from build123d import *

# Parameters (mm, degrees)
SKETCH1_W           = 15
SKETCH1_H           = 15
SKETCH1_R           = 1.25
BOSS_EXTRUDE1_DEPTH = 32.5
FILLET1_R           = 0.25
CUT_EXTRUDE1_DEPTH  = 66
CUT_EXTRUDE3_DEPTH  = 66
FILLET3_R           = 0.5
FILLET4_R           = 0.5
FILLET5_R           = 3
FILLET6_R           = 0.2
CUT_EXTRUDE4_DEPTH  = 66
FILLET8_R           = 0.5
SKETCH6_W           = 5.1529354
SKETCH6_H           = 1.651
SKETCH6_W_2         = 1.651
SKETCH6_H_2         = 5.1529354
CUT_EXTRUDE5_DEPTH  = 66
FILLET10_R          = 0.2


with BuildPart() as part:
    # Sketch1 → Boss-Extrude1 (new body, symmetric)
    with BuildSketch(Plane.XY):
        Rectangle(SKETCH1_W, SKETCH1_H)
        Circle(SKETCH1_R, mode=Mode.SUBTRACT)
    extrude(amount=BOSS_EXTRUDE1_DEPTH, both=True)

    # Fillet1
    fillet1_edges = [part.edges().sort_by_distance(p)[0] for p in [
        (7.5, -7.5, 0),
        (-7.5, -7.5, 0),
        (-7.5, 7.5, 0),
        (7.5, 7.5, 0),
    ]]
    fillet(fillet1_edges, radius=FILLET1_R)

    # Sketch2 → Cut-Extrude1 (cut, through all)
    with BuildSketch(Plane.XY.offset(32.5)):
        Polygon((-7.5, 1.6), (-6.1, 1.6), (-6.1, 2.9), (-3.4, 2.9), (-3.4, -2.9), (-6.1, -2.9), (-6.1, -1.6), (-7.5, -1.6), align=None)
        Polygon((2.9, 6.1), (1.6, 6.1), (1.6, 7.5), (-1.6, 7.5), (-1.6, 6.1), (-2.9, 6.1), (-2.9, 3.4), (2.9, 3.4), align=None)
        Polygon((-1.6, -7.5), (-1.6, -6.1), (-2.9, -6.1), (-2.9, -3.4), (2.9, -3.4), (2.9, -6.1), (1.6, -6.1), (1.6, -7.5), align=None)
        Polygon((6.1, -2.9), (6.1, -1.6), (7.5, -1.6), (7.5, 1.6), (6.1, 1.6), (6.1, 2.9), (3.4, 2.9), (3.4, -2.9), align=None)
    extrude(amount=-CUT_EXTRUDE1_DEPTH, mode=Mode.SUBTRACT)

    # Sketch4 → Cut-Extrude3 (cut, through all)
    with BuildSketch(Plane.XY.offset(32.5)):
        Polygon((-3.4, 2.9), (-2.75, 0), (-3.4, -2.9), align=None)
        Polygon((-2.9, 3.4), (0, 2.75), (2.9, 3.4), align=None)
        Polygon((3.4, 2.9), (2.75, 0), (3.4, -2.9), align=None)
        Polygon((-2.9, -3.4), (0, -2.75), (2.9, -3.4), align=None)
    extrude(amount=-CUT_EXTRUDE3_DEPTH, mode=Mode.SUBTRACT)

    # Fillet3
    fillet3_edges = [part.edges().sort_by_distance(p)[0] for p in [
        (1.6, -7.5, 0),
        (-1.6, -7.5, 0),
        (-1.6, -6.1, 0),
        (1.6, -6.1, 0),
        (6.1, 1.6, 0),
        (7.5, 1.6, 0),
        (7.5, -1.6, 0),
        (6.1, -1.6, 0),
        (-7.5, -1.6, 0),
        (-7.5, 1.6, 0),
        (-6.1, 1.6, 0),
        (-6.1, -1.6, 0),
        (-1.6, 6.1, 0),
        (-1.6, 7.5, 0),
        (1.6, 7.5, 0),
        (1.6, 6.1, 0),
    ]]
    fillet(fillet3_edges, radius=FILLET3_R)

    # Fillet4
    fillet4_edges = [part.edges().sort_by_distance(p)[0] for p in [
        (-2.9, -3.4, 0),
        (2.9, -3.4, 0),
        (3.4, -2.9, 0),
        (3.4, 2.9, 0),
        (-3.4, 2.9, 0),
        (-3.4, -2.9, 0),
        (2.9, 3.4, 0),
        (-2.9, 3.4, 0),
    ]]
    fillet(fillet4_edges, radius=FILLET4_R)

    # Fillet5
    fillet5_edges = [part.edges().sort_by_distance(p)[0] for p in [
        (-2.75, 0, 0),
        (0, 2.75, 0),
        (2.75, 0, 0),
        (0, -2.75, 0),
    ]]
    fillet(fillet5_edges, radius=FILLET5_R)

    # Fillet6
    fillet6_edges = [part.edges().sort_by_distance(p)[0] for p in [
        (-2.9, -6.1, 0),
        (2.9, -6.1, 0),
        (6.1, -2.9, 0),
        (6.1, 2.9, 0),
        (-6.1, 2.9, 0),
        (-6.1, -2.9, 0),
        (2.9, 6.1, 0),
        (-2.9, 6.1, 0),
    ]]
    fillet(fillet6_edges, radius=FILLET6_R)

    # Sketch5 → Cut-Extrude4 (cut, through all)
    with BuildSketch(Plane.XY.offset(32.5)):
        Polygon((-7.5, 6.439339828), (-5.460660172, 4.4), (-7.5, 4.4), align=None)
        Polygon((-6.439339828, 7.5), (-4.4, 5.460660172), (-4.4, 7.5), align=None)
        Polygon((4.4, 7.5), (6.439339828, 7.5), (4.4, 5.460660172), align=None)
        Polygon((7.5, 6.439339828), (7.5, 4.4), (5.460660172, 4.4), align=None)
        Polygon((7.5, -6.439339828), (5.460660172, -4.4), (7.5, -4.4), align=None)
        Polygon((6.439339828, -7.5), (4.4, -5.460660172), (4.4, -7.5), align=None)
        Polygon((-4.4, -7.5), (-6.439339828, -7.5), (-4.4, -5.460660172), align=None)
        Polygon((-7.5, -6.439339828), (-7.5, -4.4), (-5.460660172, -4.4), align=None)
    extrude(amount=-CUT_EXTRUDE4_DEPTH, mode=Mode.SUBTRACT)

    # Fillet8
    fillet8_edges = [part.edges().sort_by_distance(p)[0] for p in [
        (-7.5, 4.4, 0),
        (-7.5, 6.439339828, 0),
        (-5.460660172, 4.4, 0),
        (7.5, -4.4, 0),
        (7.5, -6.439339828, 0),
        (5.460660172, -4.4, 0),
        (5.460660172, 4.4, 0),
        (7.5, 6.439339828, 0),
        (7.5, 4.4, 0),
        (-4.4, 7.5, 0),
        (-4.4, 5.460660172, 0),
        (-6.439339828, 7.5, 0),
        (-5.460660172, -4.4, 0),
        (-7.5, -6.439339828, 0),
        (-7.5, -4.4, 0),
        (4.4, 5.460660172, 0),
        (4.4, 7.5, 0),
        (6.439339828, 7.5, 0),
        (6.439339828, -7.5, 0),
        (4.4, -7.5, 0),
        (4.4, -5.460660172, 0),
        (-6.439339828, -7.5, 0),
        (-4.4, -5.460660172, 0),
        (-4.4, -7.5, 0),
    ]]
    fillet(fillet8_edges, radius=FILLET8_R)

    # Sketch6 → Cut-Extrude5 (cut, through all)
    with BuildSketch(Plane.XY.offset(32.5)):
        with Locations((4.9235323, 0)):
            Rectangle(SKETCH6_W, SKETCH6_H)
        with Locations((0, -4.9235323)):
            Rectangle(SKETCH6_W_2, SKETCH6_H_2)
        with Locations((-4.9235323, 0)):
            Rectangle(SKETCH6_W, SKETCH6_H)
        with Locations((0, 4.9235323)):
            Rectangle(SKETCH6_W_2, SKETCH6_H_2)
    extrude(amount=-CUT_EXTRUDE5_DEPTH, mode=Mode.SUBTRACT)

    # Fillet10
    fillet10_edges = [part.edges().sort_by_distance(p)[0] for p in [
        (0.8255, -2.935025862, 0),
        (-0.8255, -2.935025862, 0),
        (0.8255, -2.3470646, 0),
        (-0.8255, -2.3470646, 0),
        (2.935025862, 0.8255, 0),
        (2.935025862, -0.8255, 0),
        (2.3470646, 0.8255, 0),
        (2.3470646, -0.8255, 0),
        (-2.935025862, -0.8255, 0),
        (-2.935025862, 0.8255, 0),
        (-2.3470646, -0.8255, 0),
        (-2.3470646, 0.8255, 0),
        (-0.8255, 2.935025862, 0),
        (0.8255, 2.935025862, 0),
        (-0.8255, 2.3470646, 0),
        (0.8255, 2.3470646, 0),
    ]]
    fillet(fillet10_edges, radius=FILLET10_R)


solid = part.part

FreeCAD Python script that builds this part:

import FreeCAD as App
import Part
import Sketcher
from FreeCAD import Vector


def edges_at(feature, points):
    """Names of the edges that pass closest to the given points."""
    edges = feature.Shape.Edges
    near = lambda p: min(range(len(edges)), key=lambda i: edges[i].distToShape(Part.Vertex(*p))[0])
    return sorted({f"Edge{near(p) + 1}" for p in points})

doc = App.newDocument("Part")
body = doc.addObject("PartDesign::Body", "Body")

sketch1 = body.newObject("Sketcher::SketchObject", "Sketch")
sketch1.AttachmentSupport = (doc.getObject("XY_Plane"), [""])
sketch1.MapMode = "FlatFace"
sketch1.addGeometry([
    Part.LineSegment(Vector(-7.5, 7.5, 0), Vector(-7.5, -7.5, 0)),
    Part.LineSegment(Vector(-7.5, -7.5, 0), Vector(7.5, -7.5, 0)),
    Part.LineSegment(Vector(7.5, -7.5, 0), Vector(7.5, 7.5, 0)),
    Part.LineSegment(Vector(7.5, 7.5, 0), Vector(-7.5, 7.5, 0)),
    Part.Circle(Vector(0, 0, 0), Vector(0, 0, 1), 1.2),
], False)
sketch1.addConstraint([
    Sketcher.Constraint("Coincident", 0, 2, 1, 1),
    Sketcher.Constraint("Coincident", 1, 2, 2, 1),
    Sketcher.Constraint("Coincident", 2, 2, 3, 1),
    Sketcher.Constraint("Coincident", 3, 2, 0, 1),
    Sketcher.Constraint("Vertical", 0),
    Sketcher.Constraint("Horizontal", 1),
    Sketcher.Constraint("Vertical", 2),
    Sketcher.Constraint("Horizontal", 3),
    Sketcher.Constraint("Coincident", 4, 3, -1, 1),
    Sketcher.Constraint("Symmetric", 0, 2, 2, 2, -1, 1),
    Sketcher.Constraint("Equal", 3, 0),
    Sketcher.Constraint("Diameter", 4, 2.5),
    Sketcher.Constraint("DistanceX", 1, 1, 1, 2, 15.0),
])
pad1 = body.newObject("PartDesign::Pad", "Pad")
pad1.Profile = sketch1
pad1.Length = 65
pad1.Midplane = True
doc.recompute()

fillet = body.newObject("PartDesign::Fillet", "Fillet")
fillet.Base = (pad1, edges_at(pad1, [
    (7.5, -7.5, 0),
    (-7.5, -7.5, 0),
    (-7.5, 7.5, 0),
    (7.5, 7.5, 0),
]))
fillet.Radius = 0.25

sketch2 = body.newObject("Sketcher::SketchObject", "Sketch001")
sketch2.AttachmentSupport = (doc.getObject("XY_Plane"), [""])
sketch2.MapMode = "FlatFace"
sketch2.AttachmentOffset = App.Placement(Vector(0, 0, 32.5), App.Rotation())
sketch2.addGeometry([
    Part.LineSegment(Vector(-6.1, 1.6, 0), Vector(-7.5, 1.6, 0)),
    Part.LineSegment(Vector(-7.5, 1.6, 0), Vector(-7.5, -1.6, 0)),
    Part.LineSegment(Vector(-7.5, -1.6, 0), Vector(-6.1, -1.6, 0)),
    Part.LineSegment(Vector(-6.1, -1.6, 0), Vector(-6.1, -2.9, 0)),
    Part.LineSegment(Vector(-6.1, -2.9, 0), Vector(-3.4, -2.9, 0)),
    Part.LineSegment(Vector(-3.4, -2.9, 0), Vector(-3.4, 2.9, 0)),
    Part.LineSegment(Vector(-3.4, 2.9, 0), Vector(-6.1, 2.9, 0)),
    Part.LineSegment(Vector(-6.1, 2.9, 0), Vector(-6.1, 1.6, 0)),
    Part.LineSegment(Vector(2.9, 6.1, 0), Vector(1.6, 6.1, 0)),
    Part.LineSegment(Vector(1.6, 6.1, 0), Vector(1.6, 7.5, 0)),
    Part.LineSegment(Vector(1.6, 7.5, 0), Vector(-1.6, 7.5, 0)),
    Part.LineSegment(Vector(-1.6, 7.5, 0), Vector(-1.6, 6.1, 0)),
    Part.LineSegment(Vector(-1.6, 6.1, 0), Vector(-2.9, 6.1, 0)),
    Part.LineSegment(Vector(-2.9, 6.1, 0), Vector(-2.9, 3.4, 0)),
    Part.LineSegment(Vector(-2.9, 3.4, 0), Vector(2.9, 3.4, 0)),
    Part.LineSegment(Vector(2.9, 3.4, 0), Vector(2.9, 6.1, 0)),
    Part.LineSegment(Vector(-1.6, -6.1, 0), Vector(-1.6, -7.5, 0)),
    Part.LineSegment(Vector(-1.6, -7.5, 0), Vector(1.6, -7.5, 0)),
    Part.LineSegment(Vector(1.6, -7.5, 0), Vector(1.6, -6.1, 0)),
    Part.LineSegment(Vector(1.6, -6.1, 0), Vector(2.9, -6.1, 0)),
    Part.LineSegment(Vector(2.9, -6.1, 0), Vector(2.9, -3.4, 0)),
    Part.LineSegment(Vector(2.9, -3.4, 0), Vector(-2.9, -3.4, 0)),
    Part.LineSegment(Vector(-2.9, -3.4, 0), Vector(-2.9, -6.1, 0)),
    Part.LineSegment(Vector(-2.9, -6.1, 0), Vector(-1.6, -6.1, 0)),
    Part.LineSegment(Vector(6.1, -2.9, 0), Vector(6.1, -1.6, 0)),
    Part.LineSegment(Vector(6.1, -1.6, 0), Vector(7.5, -1.6, 0)),
    Part.LineSegment(Vector(7.5, -1.6, 0), Vector(7.5, 1.6, 0)),
    Part.LineSegment(Vector(7.5, 1.6, 0), Vector(6.1, 1.6, 0)),
    Part.LineSegment(Vector(6.1, 1.6, 0), Vector(6.1, 2.9, 0)),
    Part.LineSegment(Vector(6.1, 2.9, 0), Vector(3.4, 2.9, 0)),
    Part.LineSegment(Vector(3.4, 2.9, 0), Vector(3.4, -2.9, 0)),
    Part.LineSegment(Vector(3.4, -2.9, 0), Vector(6.1, -2.9, 0)),
], False)
sketch2.addConstraint([
    Sketcher.Constraint("Coincident", 0, 2, 1, 1),
    Sketcher.Constraint("Coincident", 1, 2, 2, 1),
    Sketcher.Constraint("Coincident", 2, 2, 3, 1),
    Sketcher.Constraint("Coincident", 3, 2, 4, 1),
    Sketcher.Constraint("Coincident", 4, 2, 5, 1),
    Sketcher.Constraint("Coincident", 5, 2, 6, 1),
    Sketcher.Constraint("Coincident", 6, 2, 7, 1),
    Sketcher.Constraint("Coincident", 7, 2, 0, 1),
    Sketcher.Constraint("Coincident", 8, 2, 9, 1),
    Sketcher.Constraint("Coincident", 9, 2, 10, 1),
    Sketcher.Constraint("Coincident", 10, 2, 11, 1),
    Sketcher.Constraint("Coincident", 11, 2, 12, 1),
    Sketcher.Constraint("Coincident", 12, 2, 13, 1),
    Sketcher.Constraint("Coincident", 13, 2, 14, 1),
    Sketcher.Constraint("Coincident", 14, 2, 15, 1),
    Sketcher.Constraint("Coincident", 15, 2, 8, 1),
    Sketcher.Constraint("Coincident", 16, 2, 17, 1),
    Sketcher.Constraint("Coincident", 17, 2, 18, 1),
    Sketcher.Constraint("Coincident", 18, 2, 19, 1),
    Sketcher.Constraint("Coincident", 19, 2, 20, 1),
    Sketcher.Constraint("Coincident", 20, 2, 21, 1),
    Sketcher.Constraint("Coincident", 21, 2, 22, 1),
    Sketcher.Constraint("Coincident", 22, 2, 23, 1),
    Sketcher.Constraint("Coincident", 23, 2, 16, 1),
    Sketcher.Constraint("Coincident", 24, 2, 25, 1),
    Sketcher.Constraint("Coincident", 25, 2, 26, 1),
    Sketcher.Constraint("Coincident", 26, 2, 27, 1),
    Sketcher.Constraint("Coincident", 27, 2, 28, 1),
    Sketcher.Constraint("Coincident", 28, 2, 29, 1),
    Sketcher.Constraint("Coincident", 29, 2, 30, 1),
    Sketcher.Constraint("Coincident", 30, 2, 31, 1),
    Sketcher.Constraint("Coincident", 31, 2, 24, 1),
    Sketcher.Constraint("Horizontal", 0),
    Sketcher.Constraint("Vertical", 1),
    Sketcher.Constraint("Horizontal", 2),
    Sketcher.Constraint("Vertical", 3),
    Sketcher.Constraint("Horizontal", 4),
    Sketcher.Constraint("Vertical", 5),
    Sketcher.Constraint("Horizontal", 6),
    Sketcher.Constraint("Vertical", 7),
    Sketcher.Constraint("Horizontal", 8),
    Sketcher.Constraint("Vertical", 9),
    Sketcher.Constraint("Horizontal", 10),
    Sketcher.Constraint("Vertical", 11),
    Sketcher.Constraint("Horizontal", 12),
    Sketcher.Constraint("Vertical", 13),
    Sketcher.Constraint("Horizontal", 14),
    Sketcher.Constraint("Vertical", 15),
    Sketcher.Constraint("Vertical", 16),
    Sketcher.Constraint("Horizontal", 17),
    Sketcher.Constraint("Vertical", 18),
    Sketcher.Constraint("Horizontal", 19),
    Sketcher.Constraint("Vertical", 20),
    Sketcher.Constraint("Horizontal", 21),
    Sketcher.Constraint("Vertical", 22),
    Sketcher.Constraint("Horizontal", 23),
    Sketcher.Constraint("Vertical", 24),
    Sketcher.Constraint("Horizontal", 25),
    Sketcher.Constraint("Vertical", 26),
    Sketcher.Constraint("Horizontal", 27),
    Sketcher.Constraint("Vertical", 28),
    Sketcher.Constraint("Horizontal", 29),
    Sketcher.Constraint("Vertical", 30),
    Sketcher.Constraint("Horizontal", 31),
    Sketcher.Constraint("Symmetric", 9, 2, 16, 2, -1, 1),
    Sketcher.Constraint("Symmetric", 11, 2, 18, 2, -1, 1),
    Sketcher.Constraint("Symmetric", 13, 2, 20, 2, -1, 1),
    Sketcher.Constraint("Symmetric", 15, 2, 22, 2, -1, 1),
    Sketcher.Constraint("Symmetric", 7, 2, 24, 2, -1, 1),
    Sketcher.Constraint("Symmetric", 1, 2, 26, 2, -1, 1),
    Sketcher.Constraint("Symmetric", 3, 2, 28, 2, -1, 1),
    Sketcher.Constraint("Symmetric", 5, 2, 30, 2, -1, 1),
    Sketcher.Constraint("Symmetric", 8, 2, 11, 2, -2),
    Sketcher.Constraint("Symmetric", 2, 2, 24, 2, -2),
    Sketcher.Constraint("Horizontal", 6, 2, 28, 2),
    Sketcher.Constraint("Vertical", 15, 2, 19, 2),
    Sketcher.Constraint("Equal", 17, 1),
    Sketcher.Constraint("Equal", 23, 3),
    Sketcher.Constraint("Equal", 27, 9),
    Sketcher.Constraint("Equal", 31, 13),
    Sketcher.Constraint("DistanceX", 0, 2, 0, 1, 1.4),
    Sketcher.Constraint("DistanceX", 4, 1, 4, 2, 2.7),
    Sketcher.Constraint("DistanceX", 8, 2, 8, 1, 1.3),
    Sketcher.Constraint("DistanceX", 10, 2, 10, 1, 3.2),
    Sketcher.Constraint("DistanceX", 5, 2, 8, 2, 5.0),
    Sketcher.Constraint("DistanceY", 4, 2, 8, 2, 9.0),
])
pocket1 = body.newObject("PartDesign::Pocket", "Pocket")
pocket1.Profile = sketch2
pocket1.Type = "ThroughAll"

sketch3 = body.newObject("Sketcher::SketchObject", "Sketch002")
sketch3.AttachmentSupport = (doc.getObject("XY_Plane"), [""])
sketch3.MapMode = "FlatFace"
sketch3.AttachmentOffset = App.Placement(Vector(0, 0, 32.5), App.Rotation())
sketch3.addGeometry([
    Part.LineSegment(Vector(-2.8, 0, 0), Vector(-3.4, 2.9, 0)),
    Part.LineSegment(Vector(-3.4, 2.9, 0), Vector(-3.4, -2.9, 0)),
    Part.LineSegment(Vector(-3.4, -2.9, 0), Vector(-2.8, 0, 0)),
    Part.LineSegment(Vector(-2.9, 3.4, 0), Vector(0, 2.8, 0)),
    Part.LineSegment(Vector(0, 2.8, 0), Vector(2.9, 3.4, 0)),
    Part.LineSegment(Vector(2.9, 3.4, 0), Vector(-2.9, 3.4, 0)),
    Part.LineSegment(Vector(3.4, 2.9, 0), Vector(2.8, 0, 0)),
    Part.LineSegment(Vector(2.8, 0, 0), Vector(3.4, -2.9, 0)),
    Part.LineSegment(Vector(3.4, -2.9, 0), Vector(3.4, 2.9, 0)),
    Part.LineSegment(Vector(0, -2.8, 0), Vector(-2.9, -3.4, 0)),
    Part.LineSegment(Vector(-2.9, -3.4, 0), Vector(2.9, -3.4, 0)),
    Part.LineSegment(Vector(2.9, -3.4, 0), Vector(0, -2.8, 0)),
], False)
sketch3.addConstraint([
    Sketcher.Constraint("Coincident", 0, 2, 1, 1),
    Sketcher.Constraint("Coincident", 1, 2, 2, 1),
    Sketcher.Constraint("Coincident", 2, 2, 0, 1),
    Sketcher.Constraint("Coincident", 3, 2, 4, 1),
    Sketcher.Constraint("Coincident", 4, 2, 5, 1),
    Sketcher.Constraint("Coincident", 5, 2, 3, 1),
    Sketcher.Constraint("Coincident", 6, 2, 7, 1),
    Sketcher.Constraint("Coincident", 7, 2, 8, 1),
    Sketcher.Constraint("Coincident", 8, 2, 6, 1),
    Sketcher.Constraint("Coincident", 9, 2, 10, 1),
    Sketcher.Constraint("Coincident", 10, 2, 11, 1),
    Sketcher.Constraint("Coincident", 11, 2, 9, 1),
    Sketcher.Constraint("Vertical", 1),
    Sketcher.Constraint("Horizontal", 5),
    Sketcher.Constraint("Vertical", 8),
    Sketcher.Constraint("Horizontal", 10),
    Sketcher.Constraint("Symmetric", 2, 2, 6, 2, -1, 1),
    Sketcher.Constraint("Symmetric", 0, 2, 7, 2, -1, 1),
    Sketcher.Constraint("Symmetric", 4, 2, 9, 2, -1, 1),
    Sketcher.Constraint("Symmetric", 3, 2, 11, 2, -1, 1),
    Sketcher.Constraint("PointOnObject", 2, 2, -1),
    Sketcher.Constraint("PointOnObject", 3, 2, -2),
    Sketcher.Constraint("Perpendicular", 2, 3),
    Sketcher.Constraint("Perpendicular", 0, 4),
    Sketcher.Constraint("Perpendicular", 3, 6),
    Sketcher.Constraint("Perpendicular", 6, 11),
    Sketcher.Constraint("Horizontal", 1, 2, 7, 2),
    Sketcher.Constraint("Equal", 10, 1),
    Sketcher.Constraint("DistanceX", 5, 2, 5, 1, 5.8),
    Sketcher.Constraint("DistanceX", 0, 2, -1, 1, 3.4),
    Sketcher.Constraint("DistanceY", -1, 1, 4, 2, 3.4),
    Sketcher.Constraint("DistanceX", 2, 2, 6, 2, 5.5),
])
pocket2 = body.newObject("PartDesign::Pocket", "Pocket001")
pocket2.Profile = sketch3
pocket2.Type = "ThroughAll"
doc.recompute()

fillet2 = body.newObject("PartDesign::Fillet", "Fillet001")
fillet2.Base = (pocket2, edges_at(pocket2, [
    (1.6, -7.5, 0),
    (-1.6, -7.5, 0),
    (-1.6, -6.1, 0),
    (1.6, -6.1, 0),
    (6.1, 1.6, 0),
    (7.5, 1.6, 0),
    (7.5, -1.6, 0),
    (6.1, -1.6, 0),
    (-7.5, -1.6, 0),
    (-7.5, 1.6, 0),
    (-6.1, 1.6, 0),
    (-6.1, -1.6, 0),
    (-1.6, 6.1, 0),
    (-1.6, 7.5, 0),
    (1.6, 7.5, 0),
    (1.6, 6.1, 0),
]))
fillet2.Radius = 0.5
doc.recompute()

fillet3 = body.newObject("PartDesign::Fillet", "Fillet002")
fillet3.Base = (fillet2, edges_at(fillet2, [
    (-2.9, -3.4, 0),
    (2.9, -3.4, 0),
    (3.4, -2.9, 0),
    (3.4, 2.9, 0),
    (-3.4, 2.9, 0),
    (-3.4, -2.9, 0),
    (2.9, 3.4, 0),
    (-2.9, 3.4, 0),
]))
fillet3.Radius = 0.5
doc.recompute()

fillet4 = body.newObject("PartDesign::Fillet", "Fillet003")
fillet4.Base = (fillet3, edges_at(fillet3, [
    (-2.75, 0, 0),
    (0, 2.75, 0),
    (2.75, 0, 0),
    (0, -2.75, 0),
]))
fillet4.Radius = 3
doc.recompute()

fillet5 = body.newObject("PartDesign::Fillet", "Fillet004")
fillet5.Base = (fillet4, edges_at(fillet4, [
    (-2.9, -6.1, 0),
    (2.9, -6.1, 0),
    (6.1, -2.9, 0),
    (6.1, 2.9, 0),
    (-6.1, 2.9, 0),
    (-6.1, -2.9, 0),
    (2.9, 6.1, 0),
    (-2.9, 6.1, 0),
]))
fillet5.Radius = 0.2

sketch4 = body.newObject("Sketcher::SketchObject", "Sketch003")
sketch4.AttachmentSupport = (doc.getObject("XY_Plane"), [""])
sketch4.MapMode = "FlatFace"
sketch4.AttachmentOffset = App.Placement(Vector(0, 0, 32.5), App.Rotation())
sketch4.addGeometry([
    Part.LineSegment(Vector(-5.5, 4.4, 0), Vector(-7.5, 6.4, 0)),
    Part.LineSegment(Vector(-7.5, 6.4, 0), Vector(-7.5, 4.4, 0)),
    Part.LineSegment(Vector(-7.5, 4.4, 0), Vector(-5.5, 4.4, 0)),
    Part.LineSegment(Vector(-6.4, 7.5, 0), Vector(-4.4, 5.5, 0)),
    Part.LineSegment(Vector(-4.4, 5.5, 0), Vector(-4.4, 7.5, 0)),
    Part.LineSegment(Vector(-4.4, 7.5, 0), Vector(-6.4, 7.5, 0)),
    Part.LineSegment(Vector(6.4, 7.5, 0), Vector(4.4, 7.5, 0)),
    Part.LineSegment(Vector(4.4, 7.5, 0), Vector(4.4, 5.5, 0)),
    Part.LineSegment(Vector(4.4, 5.5, 0), Vector(6.4, 7.5, 0)),
    Part.LineSegment(Vector(7.5, 4.4, 0), Vector(7.5, 6.4, 0)),
    Part.LineSegment(Vector(7.5, 6.4, 0), Vector(5.5, 4.4, 0)),
    Part.LineSegment(Vector(5.5, 4.4, 0), Vector(7.5, 4.4, 0)),
    Part.LineSegment(Vector(5.5, -4.4, 0), Vector(7.5, -6.4, 0)),
    Part.LineSegment(Vector(7.5, -6.4, 0), Vector(7.5, -4.4, 0)),
    Part.LineSegment(Vector(7.5, -4.4, 0), Vector(5.5, -4.4, 0)),
    Part.LineSegment(Vector(6.4, -7.5, 0), Vector(4.4, -5.5, 0)),
    Part.LineSegment(Vector(4.4, -5.5, 0), Vector(4.4, -7.5, 0)),
    Part.LineSegment(Vector(4.4, -7.5, 0), Vector(6.4, -7.5, 0)),
    Part.LineSegment(Vector(-6.4, -7.5, 0), Vector(-4.4, -7.5, 0)),
    Part.LineSegment(Vector(-4.4, -7.5, 0), Vector(-4.4, -5.5, 0)),
    Part.LineSegment(Vector(-4.4, -5.5, 0), Vector(-6.4, -7.5, 0)),
    Part.LineSegment(Vector(-7.5, -4.4, 0), Vector(-7.5, -6.4, 0)),
    Part.LineSegment(Vector(-7.5, -6.4, 0), Vector(-5.5, -4.4, 0)),
    Part.LineSegment(Vector(-5.5, -4.4, 0), Vector(-7.5, -4.4, 0)),
], False)
sketch4.addConstraint([
    Sketcher.Constraint("Coincident", 0, 2, 1, 1),
    Sketcher.Constraint("Coincident", 1, 2, 2, 1),
    Sketcher.Constraint("Coincident", 2, 2, 0, 1),
    Sketcher.Constraint("Coincident", 3, 2, 4, 1),
    Sketcher.Constraint("Coincident", 4, 2, 5, 1),
    Sketcher.Constraint("Coincident", 5, 2, 3, 1),
    Sketcher.Constraint("Coincident", 6, 2, 7, 1),
    Sketcher.Constraint("Coincident", 7, 2, 8, 1),
    Sketcher.Constraint("Coincident", 8, 2, 6, 1),
    Sketcher.Constraint("Coincident", 9, 2, 10, 1),
    Sketcher.Constraint("Coincident", 10, 2, 11, 1),
    Sketcher.Constraint("Coincident", 11, 2, 9, 1),
    Sketcher.Constraint("Coincident", 12, 2, 13, 1),
    Sketcher.Constraint("Coincident", 13, 2, 14, 1),
    Sketcher.Constraint("Coincident", 14, 2, 12, 1),
    Sketcher.Constraint("Coincident", 15, 2, 16, 1),
    Sketcher.Constraint("Coincident", 16, 2, 17, 1),
    Sketcher.Constraint("Coincident", 17, 2, 15, 1),
    Sketcher.Constraint("Coincident", 18, 2, 19, 1),
    Sketcher.Constraint("Coincident", 19, 2, 20, 1),
    Sketcher.Constraint("Coincident", 20, 2, 18, 1),
    Sketcher.Constraint("Coincident", 21, 2, 22, 1),
    Sketcher.Constraint("Coincident", 22, 2, 23, 1),
    Sketcher.Constraint("Coincident", 23, 2, 21, 1),
    Sketcher.Constraint("Vertical", 1),
    Sketcher.Constraint("Horizontal", 2),
    Sketcher.Constraint("Vertical", 4),
    Sketcher.Constraint("Horizontal", 5),
    Sketcher.Constraint("Horizontal", 6),
    Sketcher.Constraint("Vertical", 7),
    Sketcher.Constraint("Vertical", 9),
    Sketcher.Constraint("Horizontal", 11),
    Sketcher.Constraint("Vertical", 13),
    Sketcher.Constraint("Horizontal", 14),
    Sketcher.Constraint("Vertical", 16),
    Sketcher.Constraint("Horizontal", 17),
    Sketcher.Constraint("Horizontal", 18),
    Sketcher.Constraint("Vertical", 19),
    Sketcher.Constraint("Vertical", 21),
    Sketcher.Constraint("Horizontal", 23),
    Sketcher.Constraint("Symmetric", 0, 2, 12, 2, -1, 1),
    Sketcher.Constraint("Symmetric", 2, 2, 14, 2, -1, 1),
    Sketcher.Constraint("Symmetric", 3, 2, 15, 2, -1, 1),
    Sketcher.Constraint("Symmetric", 5, 2, 17, 2, -1, 1),
    Sketcher.Constraint("Symmetric", 6, 2, 18, 2, -1, 1),
    Sketcher.Constraint("Symmetric", 9, 2, 21, 2, -1, 1),
    Sketcher.Constraint("Symmetric", 10, 2, 22, 2, -1, 1),
    Sketcher.Constraint("Symmetric", 4, 2, 6, 2, -2),
    Sketcher.Constraint("Symmetric", 0, 2, 9, 2, -2),
    Sketcher.Constraint("Symmetric", 2, 2, 10, 2, -2),
    Sketcher.Constraint("Parallel", 0, 3),
    Sketcher.Constraint("Perpendicular", 3, 8),
    Sketcher.Constraint("Parallel", 8, 10),
    Sketcher.Constraint("Perpendicular", 15, 20),
    Sketcher.Constraint("Horizontal", 3, 2, 7, 2),
    Sketcher.Constraint("Horizontal", 15, 2, 19, 2),
    Sketcher.Constraint("Equal", 2, 5),
    Sketcher.Constraint("DistanceX", 0, 2, -1, 1, 7.5),
    Sketcher.Constraint("DistanceY", -1, 1, 1, 2, 4.4),
    Sketcher.Constraint("DistanceX", 3, 2, -1, 1, 4.4),
    Sketcher.Constraint("DistanceY", -1, 1, 4, 2, 7.5),
    Sketcher.Constraint("DistanceX", 2, 1, 2, 2, 2.03934),
])
pocket3 = body.newObject("PartDesign::Pocket", "Pocket002")
pocket3.Profile = sketch4
pocket3.Type = "ThroughAll"
doc.recompute()

fillet6 = body.newObject("PartDesign::Fillet", "Fillet005")
fillet6.Base = (pocket3, edges_at(pocket3, [
    (-7.5, 4.4, 0),
    (-7.5, 6.439, 0),
    (-5.461, 4.4, 0),
    (7.5, -4.4, 0),
    (7.5, -6.439, 0),
    (5.461, -4.4, 0),
    (5.461, 4.4, 0),
    (7.5, 6.439, 0),
    (7.5, 4.4, 0),
    (-4.4, 7.5, 0),
    (-4.4, 5.461, 0),
    (-6.439, 7.5, 0),
    (-5.461, -4.4, 0),
    (-7.5, -6.439, 0),
    (-7.5, -4.4, 0),
    (4.4, 5.461, 0),
    (4.4, 7.5, 0),
    (6.439, 7.5, 0),
    (6.439, -7.5, 0),
    (4.4, -7.5, 0),
    (4.4, -5.461, 0),
    (-6.439, -7.5, 0),
    (-4.4, -5.461, 0),
    (-4.4, -7.5, 0),
]))
fillet6.Radius = 0.5

sketch5 = body.newObject("Sketcher::SketchObject", "Sketch004")
sketch5.AttachmentSupport = (doc.getObject("XY_Plane"), [""])
sketch5.MapMode = "FlatFace"
sketch5.AttachmentOffset = App.Placement(Vector(0, 0, 32.5), App.Rotation())
sketch5.addGeometry([
    Part.LineSegment(Vector(2.3, 0.8, 0), Vector(2.3, -0.8, 0)),
    Part.LineSegment(Vector(2.3, -0.8, 0), Vector(7.5, -0.8, 0)),
    Part.LineSegment(Vector(7.5, -0.8, 0), Vector(7.5, 0.8, 0)),
    Part.LineSegment(Vector(7.5, 0.8, 0), Vector(2.3, 0.8, 0)),
    Part.LineSegment(Vector(-0.8, -2.3, 0), Vector(-0.8, -7.5, 0)),
    Part.LineSegment(Vector(-0.8, -7.5, 0), Vector(0.8, -7.5, 0)),
    Part.LineSegment(Vector(0.8, -7.5, 0), Vector(0.8, -2.3, 0)),
    Part.LineSegment(Vector(0.8, -2.3, 0), Vector(-0.8, -2.3, 0)),
    Part.LineSegment(Vector(-7.5, 0.8, 0), Vector(-7.5, -0.8, 0)),
    Part.LineSegment(Vector(-7.5, -0.8, 0), Vector(-2.3, -0.8, 0)),
    Part.LineSegment(Vector(-2.3, -0.8, 0), Vector(-2.3, 0.8, 0)),
    Part.LineSegment(Vector(-2.3, 0.8, 0), Vector(-7.5, 0.8, 0)),
    Part.LineSegment(Vector(-0.8, 7.5, 0), Vector(-0.8, 2.3, 0)),
    Part.LineSegment(Vector(-0.8, 2.3, 0), Vector(0.8, 2.3, 0)),
    Part.LineSegment(Vector(0.8, 2.3, 0), Vector(0.8, 7.5, 0)),
    Part.LineSegment(Vector(0.8, 7.5, 0), Vector(-0.8, 7.5, 0)),
], False)
sketch5.addConstraint([
    Sketcher.Constraint("Coincident", 0, 2, 1, 1),
    Sketcher.Constraint("Coincident", 1, 2, 2, 1),
    Sketcher.Constraint("Coincident", 2, 2, 3, 1),
    Sketcher.Constraint("Coincident", 3, 2, 0, 1),
    Sketcher.Constraint("Coincident", 4, 2, 5, 1),
    Sketcher.Constraint("Coincident", 5, 2, 6, 1),
    Sketcher.Constraint("Coincident", 6, 2, 7, 1),
    Sketcher.Constraint("Coincident", 7, 2, 4, 1),
    Sketcher.Constraint("Coincident", 8, 2, 9, 1),
    Sketcher.Constraint("Coincident", 9, 2, 10, 1),
    Sketcher.Constraint("Coincident", 10, 2, 11, 1),
    Sketcher.Constraint("Coincident", 11, 2, 8, 1),
    Sketcher.Constraint("Coincident", 12, 2, 13, 1),
    Sketcher.Constraint("Coincident", 13, 2, 14, 1),
    Sketcher.Constraint("Coincident", 14, 2, 15, 1),
    Sketcher.Constraint("Coincident", 15, 2, 12, 1),
    Sketcher.Constraint("Vertical", 0),
    Sketcher.Constraint("Horizontal", 1),
    Sketcher.Constraint("Vertical", 2),
    Sketcher.Constraint("Horizontal", 3),
    Sketcher.Constraint("Vertical", 4),
    Sketcher.Constraint("Horizontal", 5),
    Sketcher.Constraint("Vertical", 6),
    Sketcher.Constraint("Horizontal", 7),
    Sketcher.Constraint("Vertical", 8),
    Sketcher.Constraint("Horizontal", 9),
    Sketcher.Constraint("Vertical", 10),
    Sketcher.Constraint("Horizontal", 11),
    Sketcher.Constraint("Vertical", 12),
    Sketcher.Constraint("Horizontal", 13),
    Sketcher.Constraint("Vertical", 14),
    Sketcher.Constraint("Horizontal", 15),
    Sketcher.Constraint("Symmetric", 2, 2, 8, 2, -1, 1),
    Sketcher.Constraint("Symmetric", 0, 2, 10, 2, -1, 1),
    Sketcher.Constraint("Symmetric", 6, 2, 12, 2, -1, 1),
    Sketcher.Constraint("Symmetric", 4, 2, 14, 2, -1, 1),
    Sketcher.Constraint("Horizontal", 1, 2, 8, 2),
    Sketcher.Constraint("Vertical", 7, 2, 12, 2),
    Sketcher.Constraint("Equal", 15, 0),
    Sketcher.Constraint("Equal", 11, 4),
    Sketcher.Constraint("DistanceX", -1, 1, 1, 2, 7.5),
    Sketcher.Constraint("DistanceY", 4, 2, -1, 1, 7.5),
    Sketcher.Constraint("DistanceX", 5, 1, 5, 2, 1.651),
    Sketcher.Constraint("DistanceX", 1, 1, 1, 2, 5.152935),
])
pocket4 = body.newObject("PartDesign::Pocket", "Pocket003")
pocket4.Profile = sketch5
pocket4.Type = "ThroughAll"
doc.recompute()

fillet7 = body.newObject("PartDesign::Fillet", "Fillet006")
fillet7.Base = (pocket4, edges_at(pocket4, [
    (0.826, -2.935, 0),
    (-0.826, -2.935, 0),
    (0.826, -2.347, 0),
    (-0.826, -2.347, 0),
    (2.935, 0.826, 0),
    (2.935, -0.826, 0),
    (2.347, 0.826, 0),
    (2.347, -0.826, 0),
    (-2.935, -0.826, 0),
    (-2.935, 0.826, 0),
    (-2.347, -0.826, 0),
    (-2.347, 0.826, 0),
    (-0.826, 2.935, 0),
    (0.826, 2.935, 0),
    (-0.826, 2.347, 0),
    (0.826, 2.347, 0),
]))
fillet7.Radius = 0.2

doc.recompute()
